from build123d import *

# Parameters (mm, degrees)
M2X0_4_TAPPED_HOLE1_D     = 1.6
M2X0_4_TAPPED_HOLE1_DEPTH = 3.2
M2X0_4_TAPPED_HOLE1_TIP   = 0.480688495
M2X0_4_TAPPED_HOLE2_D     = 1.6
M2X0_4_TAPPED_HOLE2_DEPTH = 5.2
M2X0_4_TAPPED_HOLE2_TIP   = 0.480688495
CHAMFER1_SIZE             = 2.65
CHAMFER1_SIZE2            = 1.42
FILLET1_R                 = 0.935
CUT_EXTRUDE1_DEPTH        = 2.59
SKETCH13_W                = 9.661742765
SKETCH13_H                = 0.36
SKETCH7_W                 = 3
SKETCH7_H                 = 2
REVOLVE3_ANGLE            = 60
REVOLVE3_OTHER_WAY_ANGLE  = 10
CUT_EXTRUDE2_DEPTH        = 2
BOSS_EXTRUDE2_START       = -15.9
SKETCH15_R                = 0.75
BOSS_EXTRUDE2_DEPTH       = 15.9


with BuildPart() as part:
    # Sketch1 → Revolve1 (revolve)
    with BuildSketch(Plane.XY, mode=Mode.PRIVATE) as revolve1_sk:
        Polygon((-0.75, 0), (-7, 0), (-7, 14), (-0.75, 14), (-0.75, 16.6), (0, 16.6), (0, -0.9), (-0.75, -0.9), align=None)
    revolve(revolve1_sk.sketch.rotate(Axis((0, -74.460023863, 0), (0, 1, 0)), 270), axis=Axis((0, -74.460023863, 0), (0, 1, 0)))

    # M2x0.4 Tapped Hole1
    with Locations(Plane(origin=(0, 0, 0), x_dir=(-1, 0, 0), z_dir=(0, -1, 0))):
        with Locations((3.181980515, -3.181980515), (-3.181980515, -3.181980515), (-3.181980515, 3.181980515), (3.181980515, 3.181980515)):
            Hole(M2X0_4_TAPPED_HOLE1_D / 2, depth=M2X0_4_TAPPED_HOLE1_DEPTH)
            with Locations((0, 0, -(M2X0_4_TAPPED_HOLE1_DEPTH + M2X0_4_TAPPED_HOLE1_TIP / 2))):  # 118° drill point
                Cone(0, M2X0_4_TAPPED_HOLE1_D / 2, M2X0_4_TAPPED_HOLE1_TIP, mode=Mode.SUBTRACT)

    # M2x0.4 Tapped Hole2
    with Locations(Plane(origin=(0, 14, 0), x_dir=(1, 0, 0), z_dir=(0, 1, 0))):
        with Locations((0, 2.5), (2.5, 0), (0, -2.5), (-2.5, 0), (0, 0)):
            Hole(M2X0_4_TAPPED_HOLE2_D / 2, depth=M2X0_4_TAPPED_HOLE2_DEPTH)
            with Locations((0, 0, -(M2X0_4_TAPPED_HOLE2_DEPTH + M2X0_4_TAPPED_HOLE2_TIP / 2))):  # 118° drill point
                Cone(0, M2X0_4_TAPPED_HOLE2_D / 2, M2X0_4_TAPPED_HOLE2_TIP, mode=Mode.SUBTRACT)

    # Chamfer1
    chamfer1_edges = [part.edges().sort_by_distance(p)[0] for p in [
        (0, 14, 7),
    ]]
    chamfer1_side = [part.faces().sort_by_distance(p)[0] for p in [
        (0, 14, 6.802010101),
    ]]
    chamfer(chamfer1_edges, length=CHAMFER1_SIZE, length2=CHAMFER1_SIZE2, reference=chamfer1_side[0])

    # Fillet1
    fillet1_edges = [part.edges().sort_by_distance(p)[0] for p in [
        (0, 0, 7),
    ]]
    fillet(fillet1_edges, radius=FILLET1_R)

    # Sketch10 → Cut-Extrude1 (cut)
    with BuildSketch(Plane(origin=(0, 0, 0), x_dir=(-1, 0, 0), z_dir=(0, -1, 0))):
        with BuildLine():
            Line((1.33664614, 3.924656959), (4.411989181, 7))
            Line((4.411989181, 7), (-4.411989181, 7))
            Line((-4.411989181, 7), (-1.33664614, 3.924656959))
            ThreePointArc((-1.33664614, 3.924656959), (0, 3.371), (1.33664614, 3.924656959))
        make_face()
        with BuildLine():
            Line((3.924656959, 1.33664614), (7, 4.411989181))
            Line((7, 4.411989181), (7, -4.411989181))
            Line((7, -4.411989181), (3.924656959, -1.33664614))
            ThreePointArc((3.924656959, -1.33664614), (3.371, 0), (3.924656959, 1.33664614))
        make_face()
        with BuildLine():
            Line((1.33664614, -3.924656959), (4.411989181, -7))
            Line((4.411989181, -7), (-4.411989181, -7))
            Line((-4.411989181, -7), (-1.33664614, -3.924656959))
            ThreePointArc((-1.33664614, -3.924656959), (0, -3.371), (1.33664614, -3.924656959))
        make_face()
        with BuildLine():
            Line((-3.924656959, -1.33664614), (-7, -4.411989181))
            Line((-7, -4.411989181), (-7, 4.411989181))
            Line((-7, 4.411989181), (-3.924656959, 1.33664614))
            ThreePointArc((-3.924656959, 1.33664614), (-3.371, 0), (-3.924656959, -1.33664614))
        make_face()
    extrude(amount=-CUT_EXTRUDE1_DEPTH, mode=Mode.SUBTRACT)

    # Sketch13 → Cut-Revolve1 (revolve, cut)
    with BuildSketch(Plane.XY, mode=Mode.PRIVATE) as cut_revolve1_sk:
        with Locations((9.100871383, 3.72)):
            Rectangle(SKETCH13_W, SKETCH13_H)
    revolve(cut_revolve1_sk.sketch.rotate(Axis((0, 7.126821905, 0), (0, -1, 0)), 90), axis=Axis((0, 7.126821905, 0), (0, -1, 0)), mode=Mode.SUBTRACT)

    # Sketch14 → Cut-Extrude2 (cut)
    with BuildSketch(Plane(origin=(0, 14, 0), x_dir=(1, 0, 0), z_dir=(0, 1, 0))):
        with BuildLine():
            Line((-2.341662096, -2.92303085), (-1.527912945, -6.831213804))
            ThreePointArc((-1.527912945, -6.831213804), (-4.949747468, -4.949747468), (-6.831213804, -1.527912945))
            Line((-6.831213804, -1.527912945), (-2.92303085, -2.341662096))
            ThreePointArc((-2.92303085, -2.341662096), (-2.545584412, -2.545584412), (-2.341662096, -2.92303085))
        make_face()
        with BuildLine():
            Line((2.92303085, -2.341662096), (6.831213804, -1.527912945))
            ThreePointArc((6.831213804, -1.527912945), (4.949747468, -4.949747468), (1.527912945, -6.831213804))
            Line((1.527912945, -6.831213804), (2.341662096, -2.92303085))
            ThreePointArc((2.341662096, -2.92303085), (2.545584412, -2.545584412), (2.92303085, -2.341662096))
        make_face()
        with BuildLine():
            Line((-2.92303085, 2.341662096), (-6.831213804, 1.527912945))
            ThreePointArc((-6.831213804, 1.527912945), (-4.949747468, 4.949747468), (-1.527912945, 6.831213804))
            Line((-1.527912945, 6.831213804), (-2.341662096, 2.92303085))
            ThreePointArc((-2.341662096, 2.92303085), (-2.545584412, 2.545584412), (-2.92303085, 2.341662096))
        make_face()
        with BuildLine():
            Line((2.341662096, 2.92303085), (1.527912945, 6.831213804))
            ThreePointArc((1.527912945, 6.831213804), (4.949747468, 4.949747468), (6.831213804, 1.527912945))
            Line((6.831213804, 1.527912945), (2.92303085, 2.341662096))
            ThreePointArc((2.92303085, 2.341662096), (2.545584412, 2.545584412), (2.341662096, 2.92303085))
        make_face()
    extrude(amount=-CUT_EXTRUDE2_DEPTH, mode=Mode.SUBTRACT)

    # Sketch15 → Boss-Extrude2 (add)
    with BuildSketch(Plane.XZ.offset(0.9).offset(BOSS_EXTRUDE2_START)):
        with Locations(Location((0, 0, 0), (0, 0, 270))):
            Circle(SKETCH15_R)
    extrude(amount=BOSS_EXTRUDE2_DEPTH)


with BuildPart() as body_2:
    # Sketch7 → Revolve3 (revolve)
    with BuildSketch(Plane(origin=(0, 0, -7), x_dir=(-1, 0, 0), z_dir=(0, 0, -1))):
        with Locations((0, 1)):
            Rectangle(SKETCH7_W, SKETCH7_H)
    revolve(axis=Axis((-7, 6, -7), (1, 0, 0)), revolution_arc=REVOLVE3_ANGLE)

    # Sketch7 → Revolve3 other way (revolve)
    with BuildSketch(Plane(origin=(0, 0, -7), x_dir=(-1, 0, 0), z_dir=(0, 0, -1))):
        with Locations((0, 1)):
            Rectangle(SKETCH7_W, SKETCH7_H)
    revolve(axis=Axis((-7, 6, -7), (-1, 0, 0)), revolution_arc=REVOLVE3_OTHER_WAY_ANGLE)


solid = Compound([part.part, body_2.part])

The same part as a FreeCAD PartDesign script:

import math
import FreeCAD as App
import Part
import Sketcher
from FreeCAD import Vector


def edges_at(feature, points):
    """Names of the edges that pass closest to the given points."""
    edges = feature.Shape.Edges
    near = lambda p: min(range(len(edges)), key=lambda i: edges[i].distToShape(Part.Vertex(*p))[0])
    return sorted({f"Edge{near(p) + 1}" for p in points})

doc = App.newDocument("Part")
body = doc.addObject("PartDesign::Body", "Body")

sketch1 = body.newObject("Sketcher::SketchObject", "Sketch")
sketch1.AttachmentSupport = (doc.getObject("XY_Plane"), [""])
sketch1.MapMode = "FlatFace"
sketch1.addGeometry(Part.LineSegment(Vector(-7, 0, 0), Vector(-0.8, 0, 0)), False)
sketch1.addGeometry(Part.LineSegment(Vector(-0.8, 0, 0), Vector(-0.8, -0.9, 0)), False)
sketch1.addGeometry(Part.LineSegment(Vector(-0.8, -0.9, 0), Vector(0, -0.9, 0)), False)
sketch1.addGeometry(Part.LineSegment(Vector(0, -0.9, 0), Vector(0, 16.6, 0)), False)
sketch1.addGeometry(Part.LineSegment(Vector(0, 16.6, 0), Vector(-0.8, 16.6, 0)), False)
sketch1.addGeometry(Part.LineSegment(Vector(-0.8, 16.6, 0), Vector(-0.8, 14, 0)), False)
sketch1.addGeometry(Part.LineSegment(Vector(-0.8, 14, 0), Vector(-7, 14, 0)), False)
sketch1.addGeometry(Part.LineSegment(Vector(-7, 14, 0), Vector(-7, 0, 0)), False)
sketch1.addConstraint(Sketcher.Constraint("Coincident", 0, 2, 1, 1))
sketch1.addConstraint(Sketcher.Constraint("Coincident", 1, 2, 2, 1))
sketch1.addConstraint(Sketcher.Constraint("Coincident", 2, 2, 3, 1))
sketch1.addConstraint(Sketcher.Constraint("Coincident", 3, 2, 4, 1))
sketch1.addConstraint(Sketcher.Constraint("Coincident", 4, 2, 5, 1))
sketch1.addConstraint(Sketcher.Constraint("Coincident", 5, 2, 6, 1))
sketch1.addConstraint(Sketcher.Constraint("Coincident", 6, 2, 7, 1))
sketch1.addConstraint(Sketcher.Constraint("Coincident", 7, 2, 0, 1))
sketch1.addConstraint(Sketcher.Constraint("Horizontal", 0))
sketch1.addConstraint(Sketcher.Constraint("Vertical", 1))
sketch1.addConstraint(Sketcher.Constraint("Horizontal", 2))
sketch1.addConstraint(Sketcher.Constraint("Vertical", 3))
sketch1.addConstraint(Sketcher.Constraint("Horizontal", 4))
sketch1.addConstraint(Sketcher.Constraint("Vertical", 5))
sketch1.addConstraint(Sketcher.Constraint("Horizontal", 6))
sketch1.addConstraint(Sketcher.Constraint("Vertical", 7))
sketch1.addConstraint(Sketcher.Constraint("PointOnObject", 0, 2, -1))
sketch1.addConstraint(Sketcher.Constraint("PointOnObject", 2, 2, -2))
sketch1.addConstraint(Sketcher.Constraint("Vertical", 1, 2, 4, 2))
sketch1.addConstraint(Sketcher.Constraint("DistanceY", 7, 2, 7, 1, 14.0))
sketch1.addConstraint(Sketcher.Constraint("DistanceY", 1, 2, 1, 1, 0.9))
sketch1.addConstraint(Sketcher.Constraint("DistanceY", 3, 1, 3, 2, 17.5))
sketch1.addConstraint(Sketcher.Constraint("DistanceX", 6, 2, -1, 1, 7.0))
sketch1.addConstraint(Sketcher.Constraint("DistanceX", 0, 1, 0, 2, 6.25))
revolution = body.newObject("PartDesign::Revolution", "Revolution")
revolution.Profile = sketch1
revolution.ReferenceAxis = (sketch1, ["V_Axis"])
revolution.Angle = 360

sketch2 = body.newObject("Sketcher::SketchObject", "Sketch001")
sketch2.AttachmentSupport = (doc.getObject("XZ_Plane"), [""])
sketch2.MapMode = "FlatFace"
sketch2.addGeometry(Part.Circle(Vector(-3.2, 3.2, 0), Vector(0, 0, 1), 0.8), False)
sketch2.addGeometry(Part.Circle(Vector(3.2, 3.2, 0), Vector(0, 0, 1), 0.8), False)
sketch2.addGeometry(Part.Circle(Vector(3.2, -3.2, 0), Vector(0, 0, 1), 0.8), False)
sketch2.addGeometry(Part.Circle(Vector(-3.2, -3.2, 0), Vector(0, 0, 1), 0.8), False)
sketch2.addConstraint(Sketcher.Constraint("Equal", 0, 1))
sketch2.addConstraint(Sketcher.Constraint("Equal", 1, 2))
sketch2.addConstraint(Sketcher.Constraint("Equal", 2, 3))
sketch2.addConstraint(Sketcher.Constraint("Symmetric", 0, 3, 2, 3, -1, 1))
sketch2.addConstraint(Sketcher.Constraint("Symmetric", 1, 3, 3, 3, -1, 1))
sketch2.addConstraint(Sketcher.Constraint("Symmetric", 0, 3, 1, 3, -2))
sketch2.addConstraint(Sketcher.Constraint("Diameter", 0, 1.6))
sketch2.addConstraint(Sketcher.Constraint("DistanceX", 0, 3, -1, 1, 3.181981))
sketch2.addConstraint(Sketcher.Constraint("DistanceY", -1, 1, 0, 3, 3.181981))
doc.recompute()
hole = body.newObject("PartDesign::Hole", "Hole")
hole.Profile = sketch2
hole.ThreadType = "None"
hole.Diameter = 1.6
hole.DepthType = "Dimension"
hole.Depth = 3.2
hole.DrillPoint = "Angled"
hole.DrillPointAngle = 118

sketch3 = body.newObject("Sketcher::SketchObject", "Sketch002")
sketch3.AttachmentSupport = (doc.getObject("XZ_Plane"), [""])
sketch3.MapMode = "FlatFace"
sketch3.AttachmentOffset = App.Placement(Vector(0, 0, -14), App.Rotation())
sketch3.addGeometry(Part.Circle(Vector(0, -2.5, 0), Vector(0, 0, 1), 0.8), False)
sketch3.addGeometry(Part.Circle(Vector(2.5, 0, 0), Vector(0, 0, 1), 0.8), False)
sketch3.addGeometry(Part.Circle(Vector(0, 2.5, 0), Vector(0, 0, 1), 0.8), False)
sketch3.addGeometry(Part.Circle(Vector(-2.5, 0, 0), Vector(0, 0, 1), 0.8), False)
sketch3.addGeometry(Part.Circle(Vector(0, 0, 0), Vector(0, 0, 1), 0.8), False)
sketch3.addConstraint(Sketcher.Constraint("Coincident", 4, 3, -1, 1))
sketch3.addConstraint(Sketcher.Constraint("Equal", 0, 1))
sketch3.addConstraint(Sketcher.Constraint("Equal", 1, 2))
sketch3.addConstraint(Sketcher.Constraint("Equal", 2, 3))
sketch3.addConstraint(Sketcher.Constraint("Equal", 3, 4))
sketch3.addConstraint(Sketcher.Constraint("Symmetric", 0, 3, 2, 3, -1, 1))
sketch3.addConstraint(Sketcher.Constraint("Symmetric", 1, 3, 3, 3, -1, 1))
sketch3.addConstraint(Sketcher.Constraint("PointOnObject", 0, 3, -2))
sketch3.addConstraint(Sketcher.Constraint("PointOnObject", 1, 3, -1))
sketch3.addConstraint(Sketcher.Constraint("Diameter", 0, 1.6))
sketch3.addConstraint(Sketcher.Constraint("DistanceY", 0, 3, 2, 3, 5.0))
sketch3.addConstraint(Sketcher.Constraint("DistanceX", 3, 3, 1, 3, 5.0))
doc.recompute()
hole2 = body.newObject("PartDesign::Hole", "Hole001")
hole2.Profile = sketch3
hole2.ThreadType = "None"
hole2.Diameter = 1.6
hole2.DepthType = "Dimension"
hole2.Depth = 5.2
hole2.DrillPoint = "Angled"
hole2.DrillPointAngle = 118
hole2.Reversed = True
doc.recompute()

chamfer = body.newObject("PartDesign::Chamfer", "Chamfer")
chamfer.Base = (hole2, edges_at(hole2, [(0, 14, 7)]))
chamfer.ChamferType = "Two distances"
chamfer.Size = 2.65
chamfer.Size2 = 1.42
chamfer.FlipDirection = True
doc.recompute()

fillet = body.newObject("PartDesign::Fillet", "Fillet")
fillet.Base = (chamfer, edges_at(chamfer, [(0, 0, 7)]))
fillet.Radius = 0.935

sketch4 = body.newObject("Sketcher::SketchObject", "Sketch003")
sketch4.AttachmentSupport = (doc.getObject("XZ_Plane"), [""])
sketch4.MapMode = "FlatFace"
sketch4.addGeometry(Part.LineSegment(Vector(-1.3, -3.9, 0), Vector(-4.4, -7, 0)), False)
sketch4.addGeometry(Part.LineSegment(Vector(-4.4, -7, 0), Vector(4.4, -7, 0)), False)
sketch4.addGeometry(Part.LineSegment(Vector(4.4, -7, 0), Vector(1.3, -3.9, 0)), False)
sketch4.addGeometry(Part.ArcOfCircle(Part.Circle(Vector(0, -5.3, 0), Vector(0, 0, 1), 1.9), math.radians(45), math.radians(135)), False)
sketch4.addGeometry(Part.LineSegment(Vector(-7, -4.4, 0), Vector(-3.9, -1.3, 0)), False)
sketch4.addGeometry(Part.ArcOfCircle(Part.Circle(Vector(-5.3, 0, 0), Vector(0, 0, 1), 1.9), math.radians(-45), math.radians(45)), False)
sketch4.addGeometry(Part.LineSegment(Vector(-3.9, 1.3, 0), Vector(-7, 4.4, 0)), False)
sketch4.addGeometry(Part.LineSegment(Vector(-7, 4.4, 0), Vector(-7, -4.4, 0)), False)
sketch4.addGeometry(Part.LineSegment(Vector(-4.4, 7, 0), Vector(-1.3, 3.9, 0)), False)
sketch4.addGeometry(Part.ArcOfCircle(Part.Circle(Vector(0, 5.3, 0), Vector(0, 0, 1), 1.9), math.radians(-135), math.radians(-45)), False)
sketch4.addGeometry(Part.LineSegment(Vector(1.3, 3.9, 0), Vector(4.4, 7, 0)), False)
sketch4.addGeometry(Part.LineSegment(Vector(4.4, 7, 0), Vector(-4.4, 7, 0)), False)
sketch4.addGeometry(Part.LineSegment(Vector(7, 4.4, 0), Vector(3.9, 1.3, 0)), False)
sketch4.addGeometry(Part.ArcOfCircle(Part.Circle(Vector(5.3, 0, 0), Vector(0, 0, 1), 1.9), math.radians(135), math.radians(225)), False)
sketch4.addGeometry(Part.LineSegment(Vector(3.9, -1.3, 0), Vector(7, -4.4, 0)), False)
sketch4.addGeometry(Part.LineSegment(Vector(7, -4.4, 0), Vector(7, 4.4, 0)), False)
sketch4.addConstraint(Sketcher.Constraint("Coincident", 0, 2, 1, 1))
sketch4.addConstraint(Sketcher.Constraint("Coincident", 1, 2, 2, 1))
sketch4.addConstraint(Sketcher.Constraint("Tangent", 2, 2, 3, 1))
sketch4.addConstraint(Sketcher.Constraint("Tangent", 3, 2, 0, 1))
sketch4.addConstraint(Sketcher.Constraint("Tangent", 4, 2, 5, 1))
sketch4.addConstraint(Sketcher.Constraint("Tangent", 5, 2, 6, 1))
sketch4.addConstraint(Sketcher.Constraint("Coincident", 6, 2, 7, 1))
sketch4.addConstraint(Sketcher.Constraint("Coincident", 7, 2, 4, 1))
sketch4.addConstraint(Sketcher.Constraint("Tangent", 8, 2, 9, 1))
sketch4.addConstraint(Sketcher.Constraint("Tangent", 9, 2, 10, 1))
sketch4.addConstraint(Sketcher.Constraint("Coincident", 10, 2, 11, 1))
sketch4.addConstraint(Sketcher.Constraint("Coincident", 11, 2, 8, 1))
sketch4.addConstraint(Sketcher.Constraint("Tangent", 12, 2, 13, 1))
sketch4.addConstraint(Sketcher.Constraint("Tangent", 13, 2, 14, 1))
sketch4.addConstraint(Sketcher.Constraint("Coincident", 14, 2, 15, 1))
sketch4.addConstraint(Sketcher.Constraint("Coincident", 15, 2, 12, 1))
sketch4.addConstraint(Sketcher.Constraint("Horizontal", 1))
sketch4.addConstraint(Sketcher.Constraint("Vertical", 7))
sketch4.addConstraint(Sketcher.Constraint("Horizontal", 11))
sketch4.addConstraint(Sketcher.Constraint("Vertical", 15))
sketch4.addConstraint(Sketcher.Constraint("Equal", 3, 5))
sketch4.addConstraint(Sketcher.Constraint("Equal", 5, 9))
sketch4.addConstraint(Sketcher.Constraint("Equal", 9, 13))
sketch4.addConstraint(Sketcher.Constraint("Symmetric", 3, 3, 9, 3, -1, 1))
sketch4.addConstraint(Sketcher.Constraint("Symmetric", 5, 3, 13, 3, -1, 1))
sketch4.addConstraint(Sketcher.Constraint("Symmetric", 0, 2, 10, 2, -1, 1))
sketch4.addConstraint(Sketcher.Constraint("Symmetric", 6, 2, 14, 2, -1, 1))
sketch4.addConstraint(Sketcher.Constraint("Symmetric", 2, 2, 3, 2, -2))
sketch4.addConstraint(Sketcher.Constraint("Symmetric", 5, 2, 12, 2, -2))
sketch4.addConstraint(Sketcher.Constraint("Perpendicular", 0, 2))
sketch4.addConstraint(Sketcher.Constraint("Perpendicular", 2, 4))
sketch4.addConstraint(Sketcher.Constraint("Perpendicular", 4, 6))
sketch4.addConstraint(Sketcher.Constraint("Parallel", 6, 8))
sketch4.addConstraint(Sketcher.Constraint("Equal", 11, 7))
sketch4.addConstraint(Sketcher.Constraint("DistanceY", 0, 2, -1, 1, 7.0))
sketch4.addConstraint(Sketcher.Constraint("DistanceX", 6, 2, -1, 1, 7.0))
sketch4.addConstraint(Sketcher.Constraint("Radius", 3, 1.890303))
sketch4.addConstraint(Sketcher.Constraint("DistanceX", 1, 1, 1, 2, 8.823978))
pocket1 = body.newObject("PartDesign::Pocket", "Pocket")
pocket1.Profile = sketch4
pocket1.Length = 2.59

sketch5 = body.newObject("Sketcher::SketchObject", "Sketch004")
sketch5.AttachmentSupport = (doc.getObject("XY_Plane"), [""])
sketch5.MapMode = "FlatFace"
sketch5.addGeometry(Part.LineSegment(Vector(4.27, 3.9, 0), Vector(4.27, 3.54, 0)), False)
sketch5.addGeometry(Part.LineSegment(Vector(4.27, 3.54, 0), Vector(13.93, 3.54, 0)), False)
sketch5.addGeometry(Part.LineSegment(Vector(13.93, 3.54, 0), Vector(13.93, 3.9, 0)), False)
sketch5.addGeometry(Part.LineSegment(Vector(13.93, 3.9, 0), Vector(4.27, 3.9, 0)), False)
sketch5.addConstraint(Sketcher.Constraint("Coincident", 0, 2, 1, 1))
sketch5.addConstraint(Sketcher.Constraint("Coincident", 1, 2, 2, 1))
sketch5.addConstraint(Sketcher.Constraint("Coincident", 2, 2, 3, 1))
sketch5.addConstraint(Sketcher.Constraint("Coincident", 3, 2, 0, 1))
sketch5.addConstraint(Sketcher.Constraint("Vertical", 0))
sketch5.addConstraint(Sketcher.Constraint("Horizontal", 1))
sketch5.addConstraint(Sketcher.Constraint("Vertical", 2))
sketch5.addConstraint(Sketcher.Constraint("Horizontal", 3))
sketch5.addConstraint(Sketcher.Constraint("DistanceY", 0, 2, 0, 1, 0.36))
sketch5.addConstraint(Sketcher.Constraint("DistanceY", -1, 1, 2, 2, 3.9))
sketch5.addConstraint(Sketcher.Constraint("DistanceX", -1, 1, 0, 2, 4.27))
sketch5.addConstraint(Sketcher.Constraint("DistanceX", 1, 1, 1, 2, 9.661743))
groove = body.newObject("PartDesign::Groove", "Groove")
groove.Profile = sketch5
groove.ReferenceAxis = (sketch5, ["V_Axis"])
groove.Angle = 360

sketch6 = body.newObject("Sketcher::SketchObject", "Sketch005")
sketch6.AttachmentSupport = (doc.getObject("XZ_Plane"), [""])
sketch6.MapMode = "FlatFace"
sketch6.AttachmentOffset = App.Placement(Vector(0, 0, -14), App.Rotation())
sketch6.addGeometry(Part.LineSegment(Vector(-1.5, 6.8, 0), Vector(-2.3, 2.9, 0)), False)
sketch6.addGeometry(Part.ArcOfCircle(Part.Circle(Vector(-3.1, 3.1, 0), Vector(0, 0, 1), 0.7), math.radians(-78), math.radians(-12)), False)
sketch6.addGeometry(Part.LineSegment(Vector(-2.9, 2.3, 0), Vector(-6.8, 1.5, 0)), False)
sketch6.addGeometry(Part.ArcOfCircle(Part.Circle(Vector(0, 0, 0), Vector(0, 0, 1), 7), math.radians(103), math.radians(167)), False)
sketch6.addGeometry(Part.LineSegment(Vector(6.8, 1.5, 0), Vector(2.9, 2.3, 0)), False)
sketch6.addGeometry(Part.ArcOfCircle(Part.Circle(Vector(3.1, 3.1, 0), Vector(0, 0, 1), 0.7), math.radians(-168), math.radians(-102)), False)
sketch6.addGeometry(Part.LineSegment(Vector(2.3, 2.9, 0), Vector(1.5, 6.8, 0)), False)
sketch6.addGeometry(Part.ArcOfCircle(Part.Circle(Vector(0, 0, 0), Vector(0, 0, 1), 7), math.radians(13), math.radians(77)), False)
sketch6.addGeometry(Part.LineSegment(Vector(-6.8, -1.5, 0), Vector(-2.9, -2.3, 0)), False)
sketch6.addGeometry(Part.ArcOfCircle(Part.Circle(Vector(-3.1, -3.1, 0), Vector(0, 0, 1), 0.7), math.radians(12), math.radians(78)), False)
sketch6.addGeometry(Part.LineSegment(Vector(-2.3, -2.9, 0), Vector(-1.5, -6.8, 0)), False)
sketch6.addGeometry(Part.ArcOfCircle(Part.Circle(Vector(0, 0, 0), Vector(0, 0, 1), 7), math.radians(-167), math.radians(-103)), False)
sketch6.addGeometry(Part.LineSegment(Vector(1.5, -6.8, 0), Vector(2.3, -2.9, 0)), False)
sketch6.addGeometry(Part.ArcOfCircle(Part.Circle(Vector(3.1, -3.1, 0), Vector(0, 0, 1), 0.7), math.radians(102), math.radians(168)), False)
sketch6.addGeometry(Part.LineSegment(Vector(2.9, -2.3, 0), Vector(6.8, -1.5, 0)), False)
sketch6.addGeometry(Part.ArcOfCircle(Part.Circle(Vector(0, 0, 0), Vector(0, 0, 1), 7), math.radians(-77), math.radians(-13)), False)
sketch6.addConstraint(Sketcher.Constraint("Tangent", 0, 2, 1, 2))
sketch6.addConstraint(Sketcher.Constraint("Tangent", 1, 1, 2, 1))
sketch6.addConstraint(Sketcher.Constraint("Coincident", 2, 2, 3, 2))
sketch6.addConstraint(Sketcher.Constraint("Coincident", 3, 1, 0, 1))
sketch6.addConstraint(Sketcher.Constraint("Tangent", 4, 2, 5, 2))
sketch6.addConstraint(Sketcher.Constraint("Tangent", 5, 1, 6, 1))
sketch6.addConstraint(Sketcher.Constraint("Coincident", 6, 2, 7, 2))
sketch6.addConstraint(Sketcher.Constraint("Coincident", 7, 1, 4, 1))
sketch6.addConstraint(Sketcher.Constraint("Tangent", 8, 2, 9, 2))
sketch6.addConstraint(Sketcher.Constraint("Tangent", 9, 1, 10, 1))
sketch6.addConstraint(Sketcher.Constraint("Coincident", 10, 2, 11, 2))
sketch6.addConstraint(Sketcher.Constraint("Coincident", 11, 1, 8, 1))
sketch6.addConstraint(Sketcher.Constraint("Tangent", 12, 2, 13, 2))
sketch6.addConstraint(Sketcher.Constraint("Tangent", 13, 1, 14, 1))
sketch6.addConstraint(Sketcher.Constraint("Coincident", 14, 2, 15, 2))
sketch6.addConstraint(Sketcher.Constraint("Coincident", 15, 1, 12, 1))
sketch6.addConstraint(Sketcher.Constraint("Coincident", 3, 3, -1, 1))
sketch6.addConstraint(Sketcher.Constraint("Coincident", 7, 3, -1, 1))
sketch6.addConstraint(Sketcher.Constraint("Coincident", 11, 3, -1, 1))
sketch6.addConstraint(Sketcher.Constraint("Coincident", 15, 3, -1, 1))
sketch6.addConstraint(Sketcher.Constraint("Equal", 1, 5))
sketch6.addConstraint(Sketcher.Constraint("Equal", 3, 7))
sketch6.addConstraint(Sketcher.Constraint("Equal", 5, 9))
sketch6.addConstraint(Sketcher.Constraint("Equal", 7, 11))
sketch6.addConstraint(Sketcher.Constraint("Equal", 9, 13))
sketch6.addConstraint(Sketcher.Constraint("Equal", 11, 15))
sketch6.addConstraint(Sketcher.Constraint("Symmetric", 5, 3, 9, 3, -1, 1))
sketch6.addConstraint(Sketcher.Constraint("Symmetric", 1, 3, 13, 3, -1, 1))
sketch6.addConstraint(Sketcher.Constraint("Symmetric", 1, 3, 5, 3, -2))
sketch6.addConstraint(Sketcher.Constraint("Perpendicular", 0, 4))
sketch6.addConstraint(Sketcher.Constraint("Perpendicular", 2, 6))
sketch6.addConstraint(Sketcher.Constraint("Parallel", 4, 8))
sketch6.addConstraint(Sketcher.Constraint("Parallel", 6, 10))
sketch6.addConstraint(Sketcher.Constraint("Perpendicular", 8, 12))
sketch6.addConstraint(Sketcher.Constraint("Perpendicular", 10, 14))
sketch6.addConstraint(Sketcher.Constraint("Horizontal", 1, 1, 4, 2))
sketch6.addConstraint(Sketcher.Constraint("Equal", 0, 2))
sketch6.addConstraint(Sketcher.Constraint("Radius", 3, 7.0))
sketch6.addConstraint(Sketcher.Constraint("Radius", 1, 0.75))
sketch6.addConstraint(Sketcher.Constraint("DistanceY", 2, 2, 1, 3, 1.548002))
sketch6.addConstraint(Sketcher.Constraint("DistanceX", 2, 2, 1, 3, 3.755299))
pocket2 = body.newObject("PartDesign::Pocket", "Pocket001")
pocket2.Profile = sketch6
pocket2.Length = 2
pocket2.Reversed = True

sketch7 = body.newObject("Sketcher::SketchObject", "Sketch006")
sketch7.AttachmentSupport = (doc.getObject("XZ_Plane"), [""])
sketch7.MapMode = "FlatFace"
sketch7.AttachmentOffset = App.Placement(Vector(0, 0, -15), App.Rotation())
sketch7.addGeometry(Part.Circle(Vector(0, 0, 0), Vector(0, 0, 1), 0.8), False)
sketch7.addConstraint(Sketcher.Constraint("Coincident", 0, 3, -1, 1))
sketch7.addConstraint(Sketcher.Constraint("Diameter", 0, 1.5))
pad1 = body.newObject("PartDesign::Pad", "Pad")
pad1.Profile = sketch7
pad1.Length = 15.9
body2 = doc.addObject("PartDesign::Body", "Body001")

sketch8 = body2.newObject("Sketcher::SketchObject", "Sketch007")
sketch8.AttachmentSupport = (doc.getObject("XY_Plane001"), [""])
sketch8.MapMode = "FlatFace"
sketch8.AttachmentOffset = App.Placement(Vector(0, 0, -7), App.Rotation())
sketch8.addGeometry(Part.LineSegment(Vector(1.5, 2, 0), Vector(1.5, 0, 0)), False)
sketch8.addGeometry(Part.LineSegment(Vector(1.5, 0, 0), Vector(-1.5, 0, 0)), False)
sketch8.addGeometry(Part.LineSegment(Vector(-1.5, 0, 0), Vector(-1.5, 2, 0)), False)
sketch8.addGeometry(Part.LineSegment(Vector(-1.5, 2, 0), Vector(1.5, 2, 0)), False)
sketch8.addGeometry(Part.LineSegment(Vector(-1.5, 6, 0), Vector(1.5, 6, 0)), True)
sketch8.addConstraint(Sketcher.Constraint("Coincident", 0, 2, 1, 1))
sketch8.addConstraint(Sketcher.Constraint("Coincident", 1, 2, 2, 1))
sketch8.addConstraint(Sketcher.Constraint("Coincident", 2, 2, 3, 1))
sketch8.addConstraint(Sketcher.Constraint("Coincident", 3, 2, 0, 1))
sketch8.addConstraint(Sketcher.Constraint("Vertical", 0))
sketch8.addConstraint(Sketcher.Constraint("Horizontal", 1))
sketch8.addConstraint(Sketcher.Constraint("Vertical", 2))
sketch8.addConstraint(Sketcher.Constraint("Horizontal", 3))
sketch8.addConstraint(Sketcher.Constraint("Horizontal", 4))
sketch8.addConstraint(Sketcher.Constraint("Symmetric", 0, 2, 1, 2, -1, 1))
sketch8.addConstraint(Sketcher.Constraint("Vertical", 2, 2, 4, 1))
sketch8.addConstraint(Sketcher.Constraint("Vertical", 3, 2, 4, 2))
sketch8.addConstraint(Sketcher.Constraint("DistanceX", 1, 2, 1, 1, 3.0))
sketch8.addConstraint(Sketcher.Constraint("DistanceY", 0, 2, 0, 1, 2.0))
sketch8.addConstraint(Sketcher.Constraint("DistanceY", -1, 1, 4, 1, 6.0))
revolution2 = body2.newObject("PartDesign::Revolution", "Revolution001")
revolution2.Profile = sketch8
revolution2.ReferenceAxis = (sketch8, ["Axis0"])
revolution2.Angle = 60

sketch9 = body2.newObject("Sketcher::SketchObject", "Sketch008")
sketch9.AttachmentSupport = (doc.getObject("XY_Plane001"), [""])
sketch9.MapMode = "FlatFace"
sketch9.AttachmentOffset = App.Placement(Vector(0, 0, -7), App.Rotation())
sketch9.addGeometry(Part.LineSegment(Vector(1.5, 2, 0), Vector(1.5, 0, 0)), False)
sketch9.addGeometry(Part.LineSegment(Vector(1.5, 0, 0), Vector(-1.5, 0, 0)), False)
sketch9.addGeometry(Part.LineSegment(Vector(-1.5, 0, 0), Vector(-1.5, 2, 0)), False)
sketch9.addGeometry(Part.LineSegment(Vector(-1.5, 2, 0), Vector(1.5, 2, 0)), False)
sketch9.addGeometry(Part.LineSegment(Vector(1.5, 6, 0), Vector(-1.5, 6, 0)), True)
sketch9.addConstraint(Sketcher.Constraint("Coincident", 0, 2, 1, 1))
sketch9.addConstraint(Sketcher.Constraint("Coincident", 1, 2, 2, 1))
sketch9.addConstraint(Sketcher.Constraint("Coincident", 2, 2, 3, 1))
sketch9.addConstraint(Sketcher.Constraint("Coincident", 3, 2, 0, 1))
sketch9.addConstraint(Sketcher.Constraint("Vertical", 0))
sketch9.addConstraint(Sketcher.Constraint("Horizontal", 1))
sketch9.addConstraint(Sketcher.Constraint("Vertical", 2))
sketch9.addConstraint(Sketcher.Constraint("Horizontal", 3))
sketch9.addConstraint(Sketcher.Constraint("Horizontal", 4))
sketch9.addConstraint(Sketcher.Constraint("Symmetric", 0, 2, 1, 2, -1, 1))
sketch9.addConstraint(Sketcher.Constraint("Vertical", 3, 2, 4, 1))
sketch9.addConstraint(Sketcher.Constraint("Vertical", 2, 2, 4, 2))
sketch9.addConstraint(Sketcher.Constraint("DistanceX", 1, 2, 1, 1, 3.0))
sketch9.addConstraint(Sketcher.Constraint("DistanceY", 0, 2, 0, 1, 2.0))
sketch9.addConstraint(Sketcher.Constraint("DistanceY", -1, 1, 4, 1, 6.0))
revolution3 = body2.newObject("PartDesign::Revolution", "Revolution002")
revolution3.Profile = sketch9
revolution3.ReferenceAxis = (sketch9, ["Axis0"])
revolution3.Angle = 10

doc.recompute()
